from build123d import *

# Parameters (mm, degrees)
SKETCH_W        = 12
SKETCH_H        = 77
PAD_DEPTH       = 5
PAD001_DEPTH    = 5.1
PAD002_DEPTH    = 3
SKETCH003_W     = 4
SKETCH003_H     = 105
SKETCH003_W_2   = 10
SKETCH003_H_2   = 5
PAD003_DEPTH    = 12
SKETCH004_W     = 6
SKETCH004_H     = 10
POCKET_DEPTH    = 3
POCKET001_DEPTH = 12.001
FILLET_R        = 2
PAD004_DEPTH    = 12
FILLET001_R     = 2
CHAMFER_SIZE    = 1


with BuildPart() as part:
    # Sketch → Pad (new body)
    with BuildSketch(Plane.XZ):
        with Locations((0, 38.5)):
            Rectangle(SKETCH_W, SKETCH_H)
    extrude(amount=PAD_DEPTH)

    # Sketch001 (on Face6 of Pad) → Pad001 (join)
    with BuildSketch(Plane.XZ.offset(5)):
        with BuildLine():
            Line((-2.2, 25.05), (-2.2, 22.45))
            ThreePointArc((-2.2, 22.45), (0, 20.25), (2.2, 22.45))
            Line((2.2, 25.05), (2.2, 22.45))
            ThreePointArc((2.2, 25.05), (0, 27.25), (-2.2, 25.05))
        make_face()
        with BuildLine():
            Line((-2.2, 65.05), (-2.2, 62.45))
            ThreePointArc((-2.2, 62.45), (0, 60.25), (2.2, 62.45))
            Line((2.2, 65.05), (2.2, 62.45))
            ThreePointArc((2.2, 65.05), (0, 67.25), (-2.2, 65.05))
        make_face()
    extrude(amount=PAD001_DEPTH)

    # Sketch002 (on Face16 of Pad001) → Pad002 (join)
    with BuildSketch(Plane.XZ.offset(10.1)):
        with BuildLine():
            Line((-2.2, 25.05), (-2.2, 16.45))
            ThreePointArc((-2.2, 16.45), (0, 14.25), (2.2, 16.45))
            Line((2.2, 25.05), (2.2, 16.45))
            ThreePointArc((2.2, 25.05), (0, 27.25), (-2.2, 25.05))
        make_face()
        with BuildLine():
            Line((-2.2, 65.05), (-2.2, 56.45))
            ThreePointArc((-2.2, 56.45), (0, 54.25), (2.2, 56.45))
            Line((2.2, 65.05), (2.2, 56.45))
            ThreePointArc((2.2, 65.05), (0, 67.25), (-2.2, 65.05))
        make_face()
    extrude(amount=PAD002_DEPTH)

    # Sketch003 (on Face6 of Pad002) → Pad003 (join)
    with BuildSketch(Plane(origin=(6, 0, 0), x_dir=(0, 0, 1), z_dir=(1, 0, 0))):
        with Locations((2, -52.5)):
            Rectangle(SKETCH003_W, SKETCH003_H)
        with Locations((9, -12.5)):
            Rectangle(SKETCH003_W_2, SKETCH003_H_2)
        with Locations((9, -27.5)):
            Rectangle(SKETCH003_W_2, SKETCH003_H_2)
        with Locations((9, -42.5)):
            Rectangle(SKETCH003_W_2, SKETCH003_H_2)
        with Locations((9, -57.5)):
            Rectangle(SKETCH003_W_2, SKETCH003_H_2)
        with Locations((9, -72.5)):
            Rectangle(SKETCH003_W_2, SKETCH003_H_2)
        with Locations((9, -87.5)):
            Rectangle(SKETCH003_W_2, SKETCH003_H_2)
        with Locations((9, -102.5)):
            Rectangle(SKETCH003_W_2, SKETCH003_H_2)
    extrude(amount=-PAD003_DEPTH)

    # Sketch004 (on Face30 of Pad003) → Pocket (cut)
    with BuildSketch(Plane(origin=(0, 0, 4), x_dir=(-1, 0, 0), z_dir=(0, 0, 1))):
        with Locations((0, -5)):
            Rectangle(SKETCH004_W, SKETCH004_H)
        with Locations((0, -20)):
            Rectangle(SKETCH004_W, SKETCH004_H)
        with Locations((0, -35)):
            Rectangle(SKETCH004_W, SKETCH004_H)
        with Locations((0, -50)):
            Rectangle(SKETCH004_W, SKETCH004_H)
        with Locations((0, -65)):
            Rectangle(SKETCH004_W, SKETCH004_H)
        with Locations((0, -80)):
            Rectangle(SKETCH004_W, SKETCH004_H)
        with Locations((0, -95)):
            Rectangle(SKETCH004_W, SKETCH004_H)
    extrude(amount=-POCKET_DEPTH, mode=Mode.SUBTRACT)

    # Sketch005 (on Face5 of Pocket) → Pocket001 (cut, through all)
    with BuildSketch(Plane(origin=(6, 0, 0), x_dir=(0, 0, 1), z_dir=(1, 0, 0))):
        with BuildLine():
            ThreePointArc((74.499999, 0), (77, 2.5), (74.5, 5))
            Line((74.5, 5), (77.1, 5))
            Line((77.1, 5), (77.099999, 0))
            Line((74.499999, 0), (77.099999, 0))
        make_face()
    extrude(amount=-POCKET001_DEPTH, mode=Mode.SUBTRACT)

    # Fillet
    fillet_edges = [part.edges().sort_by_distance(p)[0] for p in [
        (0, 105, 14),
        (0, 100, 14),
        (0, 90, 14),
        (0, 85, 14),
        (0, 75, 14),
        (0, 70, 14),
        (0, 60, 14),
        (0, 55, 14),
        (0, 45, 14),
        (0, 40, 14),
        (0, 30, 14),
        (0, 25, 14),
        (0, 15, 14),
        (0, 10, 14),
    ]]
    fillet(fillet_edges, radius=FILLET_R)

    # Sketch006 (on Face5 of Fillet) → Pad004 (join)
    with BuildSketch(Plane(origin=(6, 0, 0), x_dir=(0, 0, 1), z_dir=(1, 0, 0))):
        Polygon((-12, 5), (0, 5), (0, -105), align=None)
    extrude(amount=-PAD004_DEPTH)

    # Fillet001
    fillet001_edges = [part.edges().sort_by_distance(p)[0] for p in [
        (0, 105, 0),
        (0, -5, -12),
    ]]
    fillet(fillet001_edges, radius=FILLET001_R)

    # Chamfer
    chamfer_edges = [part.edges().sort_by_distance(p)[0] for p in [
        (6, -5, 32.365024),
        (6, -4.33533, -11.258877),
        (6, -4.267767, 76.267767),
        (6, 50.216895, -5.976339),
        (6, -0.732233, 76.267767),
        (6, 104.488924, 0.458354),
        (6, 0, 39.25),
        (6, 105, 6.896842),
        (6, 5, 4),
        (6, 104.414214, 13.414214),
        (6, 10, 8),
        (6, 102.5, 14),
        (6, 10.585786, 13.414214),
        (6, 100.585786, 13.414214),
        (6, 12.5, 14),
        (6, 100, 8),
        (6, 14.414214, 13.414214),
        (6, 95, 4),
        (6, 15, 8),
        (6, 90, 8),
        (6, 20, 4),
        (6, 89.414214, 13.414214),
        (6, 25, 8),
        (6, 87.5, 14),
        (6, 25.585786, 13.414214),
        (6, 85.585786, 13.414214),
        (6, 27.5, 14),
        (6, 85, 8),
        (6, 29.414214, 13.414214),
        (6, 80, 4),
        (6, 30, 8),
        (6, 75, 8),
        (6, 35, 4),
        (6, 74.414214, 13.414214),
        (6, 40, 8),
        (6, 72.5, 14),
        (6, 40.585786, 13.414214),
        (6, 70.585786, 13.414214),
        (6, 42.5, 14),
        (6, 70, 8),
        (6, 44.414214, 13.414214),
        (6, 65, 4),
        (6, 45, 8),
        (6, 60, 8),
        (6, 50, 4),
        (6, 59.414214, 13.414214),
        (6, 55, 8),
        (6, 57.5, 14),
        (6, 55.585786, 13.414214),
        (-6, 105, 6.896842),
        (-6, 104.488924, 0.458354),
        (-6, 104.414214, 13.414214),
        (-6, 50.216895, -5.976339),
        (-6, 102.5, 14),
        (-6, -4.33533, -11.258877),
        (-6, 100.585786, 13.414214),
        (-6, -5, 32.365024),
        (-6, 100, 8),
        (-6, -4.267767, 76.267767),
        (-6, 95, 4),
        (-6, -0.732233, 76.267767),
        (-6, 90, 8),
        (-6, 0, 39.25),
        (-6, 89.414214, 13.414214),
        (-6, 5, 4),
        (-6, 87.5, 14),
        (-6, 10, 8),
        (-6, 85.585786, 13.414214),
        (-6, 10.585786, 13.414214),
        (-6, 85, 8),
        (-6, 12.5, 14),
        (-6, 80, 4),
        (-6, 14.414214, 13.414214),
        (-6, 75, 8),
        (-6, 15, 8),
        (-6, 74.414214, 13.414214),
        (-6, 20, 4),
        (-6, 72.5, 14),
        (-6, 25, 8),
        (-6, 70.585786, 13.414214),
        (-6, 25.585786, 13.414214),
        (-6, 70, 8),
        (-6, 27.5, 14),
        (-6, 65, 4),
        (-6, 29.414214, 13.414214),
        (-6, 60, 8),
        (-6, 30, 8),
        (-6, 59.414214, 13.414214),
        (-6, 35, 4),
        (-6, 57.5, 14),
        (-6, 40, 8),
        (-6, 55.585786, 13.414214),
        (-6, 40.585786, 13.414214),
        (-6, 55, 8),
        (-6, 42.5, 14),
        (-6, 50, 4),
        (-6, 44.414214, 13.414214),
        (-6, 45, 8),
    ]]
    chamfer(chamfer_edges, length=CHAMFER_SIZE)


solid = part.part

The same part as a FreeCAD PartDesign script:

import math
import FreeCAD as App
import Part
import Sketcher
Q = App.Units.Quantity


def edges_at(feature, points):
    """Names of the edges that pass closest to the given points."""
    edges = feature.Shape.Edges
    near = lambda p: min(range(len(edges)), key=lambda i: edges[i].distToShape(Part.Vertex(*p))[0])
    return sorted({f"Edge{near(p) + 1}" for p in points})

doc = App.newDocument("Part")
body = doc.addObject("PartDesign::Body", "Body")

# Sketch on XZ plane
sketch1 = body.newObject("Sketcher::SketchObject", "Sketch")
sketch1.AttachmentSupport = (doc.getObject("XZ_Plane"), [""])
sketch1.MapMode = "FlatFace"
sketch1.addGeometry([
    Part.LineSegment(App.Vector(-6, 77, 0), App.Vector(-6, 0, 0)),
    Part.LineSegment(App.Vector(-6, 0, 0), App.Vector(6, 0, 0)),
    Part.LineSegment(App.Vector(6, 0, 0), App.Vector(6, 77, 0)),
    Part.LineSegment(App.Vector(6, 77, 0), App.Vector(-6, 77, 0)),
], False)
sketch1.addConstraint([
    Sketcher.Constraint("Coincident", 0, 2, 1, 1),
    Sketcher.Constraint("Coincident", 1, 2, 2, 1),
    Sketcher.Constraint("Coincident", 2, 2, 3, 1),
    Sketcher.Constraint("Coincident", 3, 2, 0, 1),
    Sketcher.Constraint("Vertical", 0),
    Sketcher.Constraint("Horizontal", 1),
    Sketcher.Constraint("Vertical", 2),
    Sketcher.Constraint("Horizontal", 3),
    Sketcher.Constraint("Symmetric", 0, 2, 1, 2, -1, 1),
    Sketcher.Constraint("DistanceX", 1, 1, 1, 2, Q("12 mm")),
    Sketcher.Constraint("DistanceY", 0, 2, 0, 1, Q("77 mm")),
])
pad1 = body.newObject("PartDesign::Pad", "Pad")
pad1.Profile = sketch1
pad1.Length = 5

# Sketch on XZ plane
sketch2 = body.newObject("Sketcher::SketchObject", "Sketch001")
sketch2.AttachmentSupport = (doc.getObject("XZ_Plane"), [""])
sketch2.MapMode = "FlatFace"
sketch2.AttachmentOffset = App.Placement(App.Vector(0, 0, 5), App.Rotation())
sketch2.addGeometry([
    Part.LineSegment(App.Vector(-2.2, 25.1, 0), App.Vector(-2.2, 22.4, 0)),  # 0
    Part.ArcOfCircle(Part.Circle(App.Vector(0, 22.4, 0), App.Vector(0, 0, 1), 2.2), math.radians(180), math.radians(360)),  # 1
    Part.LineSegment(App.Vector(2.2, 22.4, 0), App.Vector(2.2, 25.1, 0)),  # 2
    Part.ArcOfCircle(Part.Circle(App.Vector(0, 25.1, 0), App.Vector(0, 0, 1), 2.2), math.radians(0), math.radians(180)),  # 3
    Part.LineSegment(App.Vector(-2.2, 65, 0), App.Vector(-2.2, 62.5, 0)),  # 4
    Part.ArcOfCircle(Part.Circle(App.Vector(0, 62.5, 0), App.Vector(0, 0, 1), 2.2), math.radians(180), math.radians(360)),  # 5
    Part.LineSegment(App.Vector(2.2, 62.5, 0), App.Vector(2.2, 65, 0)),  # 6
    Part.ArcOfCircle(Part.Circle(App.Vector(0, 65, 0), App.Vector(0, 0, 1), 2.2), math.radians(0), math.radians(180)),  # 7
], False)
sketch2.addConstraint([
    Sketcher.Constraint("Tangent", 0, 2, 1, 1),
    Sketcher.Constraint("Tangent", 1, 2, 2, 1),
    Sketcher.Constraint("Tangent", 2, 2, 3, 1),
    Sketcher.Constraint("Tangent", 3, 2, 0, 1),
    Sketcher.Constraint("Tangent", 4, 2, 5, 1),
    Sketcher.Constraint("Tangent", 5, 2, 6, 1),
    Sketcher.Constraint("Tangent", 6, 2, 7, 1),
    Sketcher.Constraint("Tangent", 7, 2, 4, 1),
    Sketcher.Constraint("Vertical", 0),
    Sketcher.Constraint("Vertical", 2),
    Sketcher.Constraint("Vertical", 4),
    Sketcher.Constraint("Vertical", 6),
    Sketcher.Constraint("Equal", 3, 5),
    Sketcher.Constraint("PointOnObject", 1, 3, -2),
    Sketcher.Constraint("PointOnObject", 5, 3, -2),
    Sketcher.Constraint("Equal", 2, 4),
    Sketcher.Constraint("Radius", 1, Q("2.2 mm")),
    Sketcher.Constraint("DistanceY", 0, 2, 0, 1, Q("2.6 mm")),
    Sketcher.Constraint("DistanceY", 1, 3, 5, 3, Q("40 mm")),
    Sketcher.Constraint("DistanceY", -1, 1, 1, 3, Q("22.45 mm")),
])
pad2 = body.newObject("PartDesign::Pad", "Pad001")
pad2.Profile = sketch2
pad2.Length = 5.1

# Sketch on XZ plane
sketch3 = body.newObject("Sketcher::SketchObject", "Sketch002")
sketch3.AttachmentSupport = (doc.getObject("XZ_Plane"), [""])
sketch3.MapMode = "FlatFace"
sketch3.AttachmentOffset = App.Placement(App.Vector(0, 0, 10.1), App.Rotation())
sketch3.addGeometry([
    Part.LineSegment(App.Vector(-2.2, 25.1, 0), App.Vector(-2.2, 16.4, 0)),  # 0
    Part.ArcOfCircle(Part.Circle(App.Vector(0, 16.4, 0), App.Vector(0, 0, 1), 2.2), math.radians(180), math.radians(360)),  # 1
    Part.LineSegment(App.Vector(2.2, 16.4, 0), App.Vector(2.2, 25.1, 0)),  # 2
    Part.ArcOfCircle(Part.Circle(App.Vector(0, 25.1, 0), App.Vector(0, 0, 1), 2.2), math.radians(0), math.radians(180)),  # 3
    Part.LineSegment(App.Vector(-2.2, 65, 0), App.Vector(-2.2, 56.5, 0)),  # 4
    Part.ArcOfCircle(Part.Circle(App.Vector(0, 56.5, 0), App.Vector(0, 0, 1), 2.2), math.radians(180), math.radians(360)),  # 5
    Part.LineSegment(App.Vector(2.2, 56.5, 0), App.Vector(2.2, 65, 0)),  # 6
    Part.ArcOfCircle(Part.Circle(App.Vector(0, 65, 0), App.Vector(0, 0, 1), 2.2), math.radians(0), math.radians(180)),  # 7
], False)
sketch3.addConstraint([
    Sketcher.Constraint("Tangent", 0, 2, 1, 1),
    Sketcher.Constraint("Tangent", 1, 2, 2, 1),
    Sketcher.Constraint("Tangent", 2, 2, 3, 1),
    Sketcher.Constraint("Tangent", 3, 2, 0, 1),
    Sketcher.Constraint("Tangent", 4, 2, 5, 1),
    Sketcher.Constraint("Tangent", 5, 2, 6, 1),
    Sketcher.Constraint("Tangent", 6, 2, 7, 1),
    Sketcher.Constraint("Tangent", 7, 2, 4, 1),
    Sketcher.Constraint("Vertical", 0),
    Sketcher.Constraint("Vertical", 2),
    Sketcher.Constraint("Vertical", 4),
    Sketcher.Constraint("Vertical", 6),
    Sketcher.Constraint("Equal", 3, 5),
    Sketcher.Constraint("PointOnObject", 1, 3, -2),
    Sketcher.Constraint("PointOnObject", 5, 3, -2),
    Sketcher.Constraint("Equal", 2, 4),
    Sketcher.Constraint("Radius", 1, Q("2.2 mm")),
    Sketcher.Constraint("DistanceY", 0, 2, 0, 1, Q("8.6 mm")),
    Sketcher.Constraint("DistanceY", 1, 3, 5, 3, Q("40 mm")),
    Sketcher.Constraint("DistanceY", -1, 1, 1, 3, Q("16.45 mm")),
])
pad3 = body.newObject("PartDesign::Pad", "Pad002")
pad3.Profile = sketch3
pad3.Length = 3

# Sketch on YZ plane
sketch4 = body.newObject("Sketcher::SketchObject", "Sketch003")
sketch4.AttachmentSupport = (doc.getObject("YZ_Plane"), [""])
sketch4.MapMode = "FlatFace"
sketch4.AttachmentOffset = App.Placement(App.Vector(0, 0, 6), App.Rotation())
sketch4.addGeometry([
    Part.LineSegment(App.Vector(0, 0, 0), App.Vector(105, 0, 0)),  # 0
    Part.LineSegment(App.Vector(105, 0, 0), App.Vector(105, 14, 0)),  # 1
    Part.LineSegment(App.Vector(105, 14, 0), App.Vector(100, 14, 0)),  # 2
    Part.LineSegment(App.Vector(100, 14, 0), App.Vector(100, 4, 0)),  # 3
    Part.LineSegment(App.Vector(100, 4, 0), App.Vector(90, 4, 0)),  # 4
    Part.LineSegment(App.Vector(90, 4, 0), App.Vector(90, 14, 0)),  # 5
    Part.LineSegment(App.Vector(90, 14, 0), App.Vector(85, 14, 0)),  # 6
    Part.LineSegment(App.Vector(85, 14, 0), App.Vector(85, 4, 0)),  # 7
    Part.LineSegment(App.Vector(85, 4, 0), App.Vector(75, 4, 0)),  # 8
    Part.LineSegment(App.Vector(75, 4, 0), App.Vector(75, 14, 0)),  # 9
    Part.LineSegment(App.Vector(75, 14, 0), App.Vector(70, 14, 0)),  # 10
    Part.LineSegment(App.Vector(70, 14, 0), App.Vector(70, 4, 0)),  # 11
    Part.LineSegment(App.Vector(70, 4, 0), App.Vector(60, 4, 0)),  # 12
    Part.LineSegment(App.Vector(60, 4, 0), App.Vector(60, 14, 0)),  # 13
    Part.LineSegment(App.Vector(60, 14, 0), App.Vector(55, 14, 0)),  # 14
    Part.LineSegment(App.Vector(55, 14, 0), App.Vector(55, 4, 0)),  # 15
    Part.LineSegment(App.Vector(55, 4, 0), App.Vector(45, 4, 0)),  # 16
    Part.LineSegment(App.Vector(45, 4, 0), App.Vector(45, 14, 0)),  # 17
    Part.LineSegment(App.Vector(45, 14, 0), App.Vector(40, 14, 0)),  # 18
    Part.LineSegment(App.Vector(40, 14, 0), App.Vector(40, 4, 0)),  # 19
    Part.LineSegment(App.Vector(40, 4, 0), App.Vector(30, 4, 0)),  # 20
    Part.LineSegment(App.Vector(30, 4, 0), App.Vector(30, 14, 0)),  # 21
    Part.LineSegment(App.Vector(30, 14, 0), App.Vector(25, 14, 0)),  # 22
    Part.LineSegment(App.Vector(25, 14, 0), App.Vector(25, 4, 0)),  # 23
    Part.LineSegment(App.Vector(25, 4, 0), App.Vector(15, 4, 0)),  # 24
    Part.LineSegment(App.Vector(15, 4, 0), App.Vector(15, 14, 0)),  # 25
    Part.LineSegment(App.Vector(15, 14, 0), App.Vector(10, 14, 0)),  # 26
    Part.LineSegment(App.Vector(10, 14, 0), App.Vector(10, 4, 0)),  # 27
    Part.LineSegment(App.Vector(10, 4, 0), App.Vector(0, 4, 0)),  # 28
    Part.LineSegment(App.Vector(0, 4, 0), App.Vector(0, 0, 0)),  # 29
], False)
sketch4.addConstraint([
    Sketcher.Constraint("Coincident", 0, 2, 1, 1),
    Sketcher.Constraint("Coincident", 1, 2, 2, 1),
    Sketcher.Constraint("Coincident", 2, 2, 3, 1),
    Sketcher.Constraint("Coincident", 3, 2, 4, 1),
    Sketcher.Constraint("Coincident", 4, 2, 5, 1),
    Sketcher.Constraint("Coincident", 5, 2, 6, 1),
    Sketcher.Constraint("Coincident", 6, 2, 7, 1),
    Sketcher.Constraint("Coincident", 7, 2, 8, 1),
    Sketcher.Constraint("Coincident", 8, 2, 9, 1),
    Sketcher.Constraint("Coincident", 9, 2, 10, 1),
    Sketcher.Constraint("Coincident", 10, 2, 11, 1),
    Sketcher.Constraint("Coincident", 11, 2, 12, 1),
    Sketcher.Constraint("Coincident", 12, 2, 13, 1),
    Sketcher.Constraint("Coincident", 13, 2, 14, 1),
    Sketcher.Constraint("Coincident", 14, 2, 15, 1),
    Sketcher.Constraint("Coincident", 15, 2, 16, 1),
    Sketcher.Constraint("Coincident", 16, 2, 17, 1),
    Sketcher.Constraint("Coincident", 17, 2, 18, 1),
    Sketcher.Constraint("Coincident", 18, 2, 19, 1),
    Sketcher.Constraint("Coincident", 19, 2, 20, 1),
    Sketcher.Constraint("Coincident", 20, 2, 21, 1),
    Sketcher.Constraint("Coincident", 21, 2, 22, 1),
    Sketcher.Constraint("Coincident", 22, 2, 23, 1),
    Sketcher.Constraint("Coincident", 23, 2, 24, 1),
    Sketcher.Constraint("Coincident", 24, 2, 25, 1),
    Sketcher.Constraint("Coincident", 25, 2, 26, 1),
    Sketcher.Constraint("Coincident", 26, 2, 27, 1),
    Sketcher.Constraint("Coincident", 27, 2, 28, 1),
    Sketcher.Constraint("Coincident", 28, 2, 29, 1),
    Sketcher.Constraint("Coincident", 29, 2, 0, 1),
    Sketcher.Constraint("Horizontal", 0),
    Sketcher.Constraint("Vertical", 1),
    Sketcher.Constraint("Horizontal", 2),
    Sketcher.Constraint("Vertical", 3),
    Sketcher.Constraint("Horizontal", 4),
    Sketcher.Constraint("Vertical", 5),
    Sketcher.Constraint("Horizontal", 6),
    Sketcher.Constraint("Vertical", 7),
    Sketcher.Constraint("Horizontal", 8),
    Sketcher.Constraint("Vertical", 9),
    Sketcher.Constraint("Horizontal", 10),
    Sketcher.Constraint("Vertical", 11),
    Sketcher.Constraint("Horizontal", 12),
    Sketcher.Constraint("Vertical", 13),
    Sketcher.Constraint("Horizontal", 14),
    Sketcher.Constraint("Vertical", 15),
    Sketcher.Constraint("Horizontal", 16),
    Sketcher.Constraint("Vertical", 17),
    Sketcher.Constraint("Horizontal", 18),
    Sketcher.Constraint("Vertical", 19),
    Sketcher.Constraint("Horizontal", 20),
    Sketcher.Constraint("Vertical", 21),
    Sketcher.Constraint("Horizontal", 22),
    Sketcher.Constraint("Vertical", 23),
    Sketcher.Constraint("Horizontal", 24),
    Sketcher.Constraint("Vertical", 25),
    Sketcher.Constraint("Horizontal", 26),
    Sketcher.Constraint("Vertical", 27),
    Sketcher.Constraint("Horizontal", 28),
    Sketcher.Constraint("Vertical", 29),
    Sketcher.Constraint("Coincident", 29, 2, -1, 1),
    Sketcher.Constraint("Horizontal", 2, 2, 5, 2),
    Sketcher.Constraint("Horizontal", 4, 2, 7, 2),
    Sketcher.Constraint("Horizontal", 6, 2, 9, 2),
    Sketcher.Constraint("Horizontal", 8, 2, 11, 2),
    Sketcher.Constraint("Horizontal", 10, 2, 13, 2),
    Sketcher.Constraint("Horizontal", 12, 2, 15, 2),
    Sketcher.Constraint("Horizontal", 14, 2, 17, 2),
    Sketcher.Constraint("Horizontal", 16, 2, 19, 2),
    Sketcher.Constraint("Horizontal", 18, 2, 21, 2),
    Sketcher.Constraint("Horizontal", 20, 2, 23, 2),
    Sketcher.Constraint("Horizontal", 22, 2, 25, 2),
    Sketcher.Constraint("Horizontal", 24, 2, 27, 2),
    Sketcher.Constraint("Equal", 2, 6),
    Sketcher.Constraint("Equal", 4, 8),
    Sketcher.Constraint("Equal", 6, 10),
    Sketcher.Constraint("Equal", 8, 12),
    Sketcher.Constraint("Equal", 10, 14),
    Sketcher.Constraint("Equal", 12, 16),
    Sketcher.Constraint("Equal", 14, 18),
    Sketcher.Constraint("Equal", 16, 20),
    Sketcher.Constraint("Equal", 18, 22),
    Sketcher.Constraint("Equal", 20, 24),
    Sketcher.Constraint("Equal", 22, 26),
    Sketcher.Constraint("Equal", 24, 28),
    Sketcher.Constraint("Equal", 28, 3),
    Sketcher.Constraint("DistanceX", 0, 1, 0, 2, Q("105 mm")),
    Sketcher.Constraint("DistanceX", 2, 2, 2, 1, Q("5 mm")),
    Sketcher.Constraint("DistanceY", 1, 1, 1, 2, Q("14 mm")),
])
pad4 = body.newObject("PartDesign::Pad", "Pad003")
pad4.Profile = sketch4
pad4.Length = 12
pad4.Reversed = True

# Sketch on XY plane
sketch5 = body.newObject("Sketcher::SketchObject", "Sketch004")
sketch5.AttachmentSupport = (doc.getObject("XY_Plane"), [""])
sketch5.MapMode = "FlatFace"
sketch5.AttachmentOffset = App.Placement(App.Vector(0, 0, 4), App.Rotation())
sketch5.addGeometry([
    Part.LineSegment(App.Vector(3, 0, 0), App.Vector(3, 10, 0)),  # 0
    Part.LineSegment(App.Vector(3, 10, 0), App.Vector(-3, 10, 0)),  # 1
    Part.LineSegment(App.Vector(-3, 10, 0), App.Vector(-3, 0, 0)),  # 2
    Part.LineSegment(App.Vector(-3, 0, 0), App.Vector(3, 0, 0)),  # 3
    Part.LineSegment(App.Vector(3, 15, 0), App.Vector(3, 25, 0)),  # 4
    Part.LineSegment(App.Vector(3, 25, 0), App.Vector(-3, 25, 0)),  # 5
    Part.LineSegment(App.Vector(-3, 25, 0), App.Vector(-3, 15, 0)),  # 6
    Part.LineSegment(App.Vector(-3, 15, 0), App.Vector(3, 15, 0)),  # 7
    Part.LineSegment(App.Vector(3, 30, 0), App.Vector(3, 40, 0)),  # 8
    Part.LineSegment(App.Vector(3, 40, 0), App.Vector(-3, 40, 0)),  # 9
    Part.LineSegment(App.Vector(-3, 40, 0), App.Vector(-3, 30, 0)),  # 10
    Part.LineSegment(App.Vector(-3, 30, 0), App.Vector(3, 30, 0)),  # 11
    Part.LineSegment(App.Vector(3, 45, 0), App.Vector(3, 55, 0)),  # 12
    Part.LineSegment(App.Vector(3, 55, 0), App.Vector(-3, 55, 0)),  # 13
    Part.LineSegment(App.Vector(-3, 55, 0), App.Vector(-3, 45, 0)),  # 14
    Part.LineSegment(App.Vector(-3, 45, 0), App.Vector(3, 45, 0)),  # 15
    Part.LineSegment(App.Vector(3, 60, 0), App.Vector(3, 70, 0)),  # 16
    Part.LineSegment(App.Vector(3, 70, 0), App.Vector(-3, 70, 0)),  # 17
    Part.LineSegment(App.Vector(-3, 70, 0), App.Vector(-3, 60, 0)),  # 18
    Part.LineSegment(App.Vector(-3, 60, 0), App.Vector(3, 60, 0)),  # 19
    Part.LineSegment(App.Vector(3, 75, 0), App.Vector(3, 85, 0)),  # 20
    Part.LineSegment(App.Vector(3, 85, 0), App.Vector(-3, 85, 0)),  # 21
    Part.LineSegment(App.Vector(-3, 85, 0), App.Vector(-3, 75, 0)),  # 22
    Part.LineSegment(App.Vector(-3, 75, 0), App.Vector(3, 75, 0)),  # 23
    Part.LineSegment(App.Vector(3, 90, 0), App.Vector(3, 100, 0)),  # 24
    Part.LineSegment(App.Vector(3, 100, 0), App.Vector(-3, 100, 0)),  # 25
    Part.LineSegment(App.Vector(-3, 100, 0), App.Vector(-3, 90, 0)),  # 26
    Part.LineSegment(App.Vector(-3, 90, 0), App.Vector(3, 90, 0)),  # 27
], False)
sketch5.addConstraint([
    Sketcher.Constraint("Coincident", 0, 2, 1, 1),
    Sketcher.Constraint("Coincident", 1, 2, 2, 1),
    Sketcher.Constraint("Coincident", 2, 2, 3, 1),
    Sketcher.Constraint("Coincident", 3, 2, 0, 1),
    Sketcher.Constraint("Coincident", 4, 2, 5, 1),
    Sketcher.Constraint("Coincident", 5, 2, 6, 1),
    Sketcher.Constraint("Coincident", 6, 2, 7, 1),
    Sketcher.Constraint("Coincident", 7, 2, 4, 1),
    Sketcher.Constraint("Coincident", 8, 2, 9, 1),
    Sketcher.Constraint("Coincident", 9, 2, 10, 1),
    Sketcher.Constraint("Coincident", 10, 2, 11, 1),
    Sketcher.Constraint("Coincident", 11, 2, 8, 1),
    Sketcher.Constraint("Coincident", 12, 2, 13, 1),
    Sketcher.Constraint("Coincident", 13, 2, 14, 1),
    Sketcher.Constraint("Coincident", 14, 2, 15, 1),
    Sketcher.Constraint("Coincident", 15, 2, 12, 1),
    Sketcher.Constraint("Coincident", 16, 2, 17, 1),
    Sketcher.Constraint("Coincident", 17, 2, 18, 1),
    Sketcher.Constraint("Coincident", 18, 2, 19, 1),
    Sketcher.Constraint("Coincident", 19, 2, 16, 1),
    Sketcher.Constraint("Coincident", 20, 2, 21, 1),
    Sketcher.Constraint("Coincident", 21, 2, 22, 1),
    Sketcher.Constraint("Coincident", 22, 2, 23, 1),
    Sketcher.Constraint("Coincident", 23, 2, 20, 1),
    Sketcher.Constraint("Coincident", 24, 2, 25, 1),
    Sketcher.Constraint("Coincident", 25, 2, 26, 1),
    Sketcher.Constraint("Coincident", 26, 2, 27, 1),
    Sketcher.Constraint("Coincident", 27, 2, 24, 1),
    Sketcher.Constraint("Vertical", 0),
    Sketcher.Constraint("Horizontal", 1),
    Sketcher.Constraint("Vertical", 2),
    Sketcher.Constraint("Horizontal", 3),
    Sketcher.Constraint("Vertical", 4),
    Sketcher.Constraint("Horizontal", 5),
    Sketcher.Constraint("Vertical", 6),
    Sketcher.Constraint("Horizontal", 7),
    Sketcher.Constraint("Vertical", 8),
    Sketcher.Constraint("Horizontal", 9),
    Sketcher.Constraint("Vertical", 10),
    Sketcher.Constraint("Horizontal", 11),
    Sketcher.Constraint("Vertical", 12),
    Sketcher.Constraint("Horizontal", 13),
    Sketcher.Constraint("Vertical", 14),
    Sketcher.Constraint("Horizontal", 15),
    Sketcher.Constraint("Vertical", 16),
    Sketcher.Constraint("Horizontal", 17),
    Sketcher.Constraint("Vertical", 18),
    Sketcher.Constraint("Horizontal", 19),
    Sketcher.Constraint("Vertical", 20),
    Sketcher.Constraint("Horizontal", 21),
    Sketcher.Constraint("Vertical", 22),
    Sketcher.Constraint("Horizontal", 23),
    Sketcher.Constraint("Vertical", 24),
    Sketcher.Constraint("Horizontal", 25),
    Sketcher.Constraint("Vertical", 26),
    Sketcher.Constraint("Horizontal", 27),
    Sketcher.Constraint("Symmetric", 2, 2, 3, 2, -1, 1),
    Sketcher.Constraint("Vertical", 3, 2, 4, 2),
    Sketcher.Constraint("Vertical", 2, 2, 5, 2),
    Sketcher.Constraint("Vertical", 7, 2, 8, 2),
    Sketcher.Constraint("Vertical", 6, 2, 9, 2),
    Sketcher.Constraint("Vertical", 11, 2, 12, 2),
    Sketcher.Constraint("Vertical", 10, 2, 13, 2),
    Sketcher.Constraint("Vertical", 15, 2, 16, 2),
    Sketcher.Constraint("Vertical", 14, 2, 17, 2),
    Sketcher.Constraint("Vertical", 19, 2, 20, 2),
    Sketcher.Constraint("Vertical", 18, 2, 21, 2),
    Sketcher.Constraint("Vertical", 23, 2, 24, 2),
    Sketcher.Constraint("Vertical", 22, 2, 25, 2),
    Sketcher.Constraint("Equal", 2, 4),
    Sketcher.Constraint("Equal", 6, 8),
    Sketcher.Constraint("Equal", 10, 12),
    Sketcher.Constraint("Equal", 14, 16),
    Sketcher.Constraint("Equal", 18, 20),
    Sketcher.Constraint("Equal", 22, 24),
    Sketcher.Constraint("DistanceX", 1, 2, 1, 1, Q("6 mm")),
    Sketcher.Constraint("DistanceY", 0, 1, 0, 2, Q("10 mm")),
    Sketcher.Constraint("DistanceY", -1, 1, 4, 2, Q("25 mm")),
    Sketcher.Constraint("DistanceY", -1, 1, 8, 2, Q("40 mm")),
    Sketcher.Constraint("DistanceY", -1, 1, 12, 2, Q("55 mm")),
    Sketcher.Constraint("DistanceY", -1, 1, 16, 2, Q("70 mm")),
    Sketcher.Constraint("DistanceY", -1, 1, 20, 2, Q("85 mm")),
    Sketcher.Constraint("DistanceY", -1, 1, 24, 2, Q("100 mm")),
])
pocket1 = body.newObject("PartDesign::Pocket", "Pocket")
pocket1.Profile = sketch5
pocket1.Length = 3

# Sketch on YZ plane
sketch6 = body.newObject("Sketcher::SketchObject", "Sketch005")
sketch6.AttachmentSupport = (doc.getObject("YZ_Plane"), [""])
sketch6.MapMode = "FlatFace"
sketch6.AttachmentOffset = App.Placement(App.Vector(0, 0, 6), App.Rotation())
sketch6.addGeometry([
    Part.ArcOfCircle(Part.Circle(App.Vector(-2.5, 74.5, 0), App.Vector(0, 0, 1), 2.5), math.radians(0), math.radians(180)),
    Part.LineSegment(App.Vector(0, 74.5, 0), App.Vector(0, 77.1, 0)),
    Part.LineSegment(App.Vector(0, 77.1, 0), App.Vector(-5, 77.1, 0)),
    Part.LineSegment(App.Vector(-5, 77.1, 0), App.Vector(-5, 74.5, 0)),
], False)
sketch6.addConstraint([
    Sketcher.Constraint("Tangent", 0, 1, 1, 1),
    Sketcher.Constraint("Coincident", 1, 2, 2, 1),
    Sketcher.Constraint("Coincident", 2, 2, 3, 1),
    Sketcher.Constraint("Tangent", 3, 2, 0, 2),
    Sketcher.Constraint("Vertical", 1),
    Sketcher.Constraint("Horizontal", 2),
    Sketcher.Constraint("Vertical", 3),
    Sketcher.Constraint("PointOnObject", 0, 1, -2),
    Sketcher.Constraint("Radius", 0, Q("2.5 mm")),
    Sketcher.Constraint("DistanceY", 1, 1, 1, 2, Q("2.6 mm")),
    Sketcher.Constraint("DistanceY", -1, 1, 0, 3, Q("74.5 mm")),
])
pocket2 = body.newObject("PartDesign::Pocket", "Pocket001")
pocket2.Profile = sketch6
pocket2.Type = "ThroughAll"
doc.recompute()

fillet = body.newObject("PartDesign::Fillet", "Fillet")
fillet.Base = (pocket2, edges_at(pocket2, [
    (0, 105, 14),
    (0, 100, 14),
    (0, 90, 14),
    (0, 85, 14),
    (0, 75, 14),
    (0, 70, 14),
    (0, 60, 14),
    (0, 55, 14),
    (0, 45, 14),
    (0, 40, 14),
    (0, 30, 14),
    (0, 25, 14),
    (0, 15, 14),
    (0, 10, 14),
]))
fillet.Radius = 2

# Sketch on YZ plane
sketch7 = body.newObject("Sketcher::SketchObject", "Sketch006")
sketch7.AttachmentSupport = (doc.getObject("YZ_Plane"), [""])
sketch7.MapMode = "FlatFace"
sketch7.AttachmentOffset = App.Placement(App.Vector(0, 0, 6), App.Rotation())
sketch7.addGeometry([
    Part.LineSegment(App.Vector(-5, 0, 0), App.Vector(-5, -12, 0)),
    Part.LineSegment(App.Vector(-5, -12, 0), App.Vector(105, 0, 0)),
    Part.LineSegment(App.Vector(105, 0, 0), App.Vector(-5, 0, 0)),
], False)
sketch7.addConstraint([
    Sketcher.Constraint("Coincident", 0, 2, 1, 1),
    Sketcher.Constraint("Coincident", 1, 2, 2, 1),
    Sketcher.Constraint("Coincident", 2, 2, 0, 1),
    Sketcher.Constraint("Vertical", 0),
    Sketcher.Constraint("Horizontal", 2),
    Sketcher.Constraint("PointOnObject", 1, 2, -1),
    Sketcher.Constraint("DistanceX", 2, 2, 2, 1, Q("110 mm")),
    Sketcher.Constraint("DistanceY", 0, 2, 0, 1, Q("12 mm")),
    Sketcher.Constraint("DistanceX", 0, 2, -1, 1, Q("5 mm")),
])
pad5 = body.newObject("PartDesign::Pad", "Pad004")
pad5.Profile = sketch7
pad5.Length = 12
pad5.Reversed = True
doc.recompute()

fillet2 = body.newObject("PartDesign::Fillet", "Fillet001")
fillet2.Base = (pad5, edges_at(pad5, [(0, 105, 0), (0, -5, -12)]))
fillet2.Radius = 2
doc.recompute()

chamfer = body.newObject("PartDesign::Chamfer", "Chamfer")
chamfer.Base = (fillet2, edges_at(fillet2, [
    (6, -5, 32.365),
    (6, -4.335, -11.259),
    (6, -2.5, 77),
    (6, 50.217, -5.976),
    (6, -2.5, 77),
    (6, 104.489, 0.458),
    (6, 0, 39.25),
    (6, 105, 6.897),
    (6, 5, 4),
    (6, 104.414, 13.414),
    (6, 10, 8),
    (6, 102.5, 14),
    (6, 10.586, 13.414),
    (6, 100.586, 13.414),
    (6, 12.5, 14),
    (6, 100, 8),
    (6, 14.414, 13.414),
    (6, 95, 4),
    (6, 15, 8),
    (6, 90, 8),
    (6, 20, 4),
    (6, 89.414, 13.414),
    (6, 25, 8),
    (6, 87.5, 14),
    (6, 25.586, 13.414),
    (6, 85.586, 13.414),
    (6, 27.5, 14),
    (6, 85, 8),
    (6, 29.414, 13.414),
    (6, 80, 4),
    (6, 30, 8),
    (6, 75, 8),
    (6, 35, 4),
    (6, 74.414, 13.414),
    (6, 40, 8),
    (6, 72.5, 14),
    (6, 40.586, 13.414),
    (6, 70.586, 13.414),
    (6, 42.5, 14),
    (6, 70, 8),
    (6, 44.414, 13.414),
    (6, 65, 4),
    (6, 45, 8),
    (6, 60, 8),
    (6, 50, 4),
    (6, 59.414, 13.414),
    (6, 55, 8),
    (6, 57.5, 14),
    (6, 55.586, 13.414),
    (-6, 105, 6.897),
    (-6, 104.489, 0.458),
    (-6, 104.414, 13.414),
    (-6, 50.217, -5.976),
    (-6, 102.5, 14),
    (-6, -4.335, -11.259),
    (-6, 100.586, 13.414),
    (-6, -5, 32.365),
    (-6, 100, 8),
    (-6, -2.5, 77),
    (-6, 95, 4),
    (-6, -2.5, 77),
    (-6, 90, 8),
    (-6, 0, 39.25),
    (-6, 89.414, 13.414),
    (-6, 5, 4),
    (-6, 87.5, 14),
    (-6, 10, 8),
    (-6, 85.586, 13.414),
    (-6, 10.586, 13.414),
    (-6, 85, 8),
    (-6, 12.5, 14),
    (-6, 80, 4),
    (-6, 14.414, 13.414),
    (-6, 75, 8),
    (-6, 15, 8),
    (-6, 74.414, 13.414),
    (-6, 20, 4),
    (-6, 72.5, 14),
    (-6, 25, 8),
    (-6, 70.586, 13.414),
    (-6, 25.586, 13.414),
    (-6, 70, 8),
    (-6, 27.5, 14),
    (-6, 65, 4),
    (-6, 29.414, 13.414),
    (-6, 60, 8),
    (-6, 30, 8),
    (-6, 59.414, 13.414),
    (-6, 35, 4),
    (-6, 57.5, 14),
    (-6, 40, 8),
    (-6, 55.586, 13.414),
    (-6, 40.586, 13.414),
    (-6, 55, 8),
    (-6, 42.5, 14),
    (-6, 50, 4),
    (-6, 44.414, 13.414),
    (-6, 45, 8),
]))
chamfer.Size = 1

doc.recompute()
